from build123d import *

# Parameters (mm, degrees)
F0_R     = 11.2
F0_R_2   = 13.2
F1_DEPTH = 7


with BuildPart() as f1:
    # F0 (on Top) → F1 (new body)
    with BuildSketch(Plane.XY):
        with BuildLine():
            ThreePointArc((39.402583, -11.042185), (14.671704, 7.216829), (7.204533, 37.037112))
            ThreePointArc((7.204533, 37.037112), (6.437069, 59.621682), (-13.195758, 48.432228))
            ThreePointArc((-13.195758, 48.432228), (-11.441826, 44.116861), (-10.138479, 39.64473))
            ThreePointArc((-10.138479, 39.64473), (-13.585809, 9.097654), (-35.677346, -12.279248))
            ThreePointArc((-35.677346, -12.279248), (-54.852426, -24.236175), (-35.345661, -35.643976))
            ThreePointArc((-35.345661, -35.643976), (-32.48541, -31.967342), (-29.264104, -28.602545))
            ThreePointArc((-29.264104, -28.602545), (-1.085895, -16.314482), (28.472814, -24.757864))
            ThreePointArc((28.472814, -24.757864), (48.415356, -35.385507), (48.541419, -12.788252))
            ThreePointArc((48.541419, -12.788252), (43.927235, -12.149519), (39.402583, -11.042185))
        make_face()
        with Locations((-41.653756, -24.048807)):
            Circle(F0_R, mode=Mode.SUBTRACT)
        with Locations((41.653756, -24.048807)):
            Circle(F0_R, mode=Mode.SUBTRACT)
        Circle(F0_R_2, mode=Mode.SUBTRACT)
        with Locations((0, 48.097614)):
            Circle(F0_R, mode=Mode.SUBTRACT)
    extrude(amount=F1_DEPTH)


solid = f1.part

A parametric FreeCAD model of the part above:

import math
import FreeCAD as App
import Part
import Sketcher

V = App.Vector
Q = App.Units.Quantity

doc = App.newDocument("Part")
body = doc.addObject("PartDesign::Body", "Body")

sketch1 = body.newObject("Sketcher::SketchObject", "Sketch")
sketch1.AttachmentSupport = (doc.getObject("XY_Plane"), [""])
sketch1.MapMode = "FlatFace"
sketch1.addGeometry(Part.ArcOfCircle(Part.Circle(V(52.462752, 32.524978, 0), V(0, 0, 1), 45.482587), math.radians(174.306565), math.radians(253.312797)), False)
sketch1.addGeometry(Part.ArcOfCircle(Part.Circle(V(0, 48.097614, 0), V(0, 0, 1), 13.2), math.radians(-56.920791), math.radians(178.547422)), False)
sketch1.addGeometry(Part.ArcOfCircle(Part.Circle(V(-54.398844, 29.171584, 0), V(0, 0, 1), 45.482598), math.radians(13.312797), math.radians(25.054036)), False)
sketch1.addGeometry(Part.ArcOfCircle(Part.Circle(V(-54.398834, 29.171586, 0), V(0, 0, 1), 45.482588), math.radians(-65.693434), math.radians(13.312798)), False)
sketch1.addGeometry(Part.ArcOfCircle(Part.Circle(V(-41.653756, -24.048807, 0), V(0, 0, 1), 13.2), math.radians(63.079207), math.radians(298.547423)), False)
sketch1.addGeometry(Part.ArcOfCircle(Part.Circle(V(1.936001, -61.696494, 0), V(0, 0, 1), 45.482481), math.radians(133.312785), math.radians(145.054054)), False)
sketch1.addGeometry(Part.ArcOfCircle(Part.Circle(V(1.936082, -61.696564, 0), V(0, 0, 1), 45.482586), math.radians(54.306564), math.radians(133.312799)), False)
sketch1.addGeometry(Part.ArcOfCircle(Part.Circle(V(41.653756, -24.048807, 0), V(0, 0, 1), 13.2), math.radians(-176.920793), math.radians(58.547425)), False)
sketch1.addGeometry(Part.ArcOfCircle(Part.Circle(V(52.462731, 32.524882, 0), V(0, 0, 1), 45.482489), math.radians(-106.687212), math.radians(-94.945946)), False)
sketch1.addGeometry(Part.Circle(V(-41.653756, -24.048807, 0), V(0, 0, 1), 11.2), False)
sketch1.addGeometry(Part.Circle(V(0, 0, 0), V(0, 0, 1), 13.2), False)
sketch1.addGeometry(Part.Circle(V(41.653756, -24.048807, 0), V(0, 0, 1), 11.2), False)
sketch1.addGeometry(Part.Circle(V(0, 48.097614, 0), V(0, 0, 1), 11.2), False)
sketch1.addConstraint(Sketcher.Constraint("Coincident", 0, 1, 1, 1))
sketch1.addConstraint(Sketcher.Constraint("Coincident", 1, 2, 2, 2))
sketch1.addConstraint(Sketcher.Constraint("Coincident", 2, 1, 3, 2))
sketch1.addConstraint(Sketcher.Constraint("Coincident", 3, 1, 4, 1))
sketch1.addConstraint(Sketcher.Constraint("Coincident", 4, 2, 5, 2))
sketch1.addConstraint(Sketcher.Constraint("Coincident", 5, 1, 6, 2))
sketch1.addConstraint(Sketcher.Constraint("Coincident", 6, 1, 7, 1))
sketch1.addConstraint(Sketcher.Constraint("Coincident", 7, 2, 8, 2))
sketch1.addConstraint(Sketcher.Constraint("Coincident", 8, 1, 0, 2))
sketch1.addConstraint(Sketcher.Constraint("Coincident", 10, 3, -1, 1))
sketch1.addConstraint(Sketcher.Constraint("Coincident", 9, 3, 4, 3))
sketch1.addConstraint(Sketcher.Constraint("Coincident", 11, 3, 7, 3))
sketch1.addConstraint(Sketcher.Constraint("Coincident", 12, 3, 1, 3))
sketch1.addConstraint(Sketcher.Constraint("PointOnObject", 1, 3, -2))
sketch1.addConstraint(Sketcher.Constraint("Diameter", 9, Q("22.4 mm")))
sketch1.addConstraint(Sketcher.Constraint("Diameter", 10, Q("26.4 mm")))
sketch1.addConstraint(Sketcher.Constraint("Diameter", 11, Q("22.4 mm")))
sketch1.addConstraint(Sketcher.Constraint("Diameter", 12, Q("22.4 mm")))
sketch1.addConstraint(Sketcher.Constraint("Radius", 1, Q("13.2 mm")))
sketch1.addConstraint(Sketcher.Constraint("Radius", 4, Q("13.2 mm")))
sketch1.addConstraint(Sketcher.Constraint("Radius", 7, Q("13.2 mm")))
sketch1.addConstraint(Sketcher.Constraint("Radius", 5, Q("45.482481 mm")))
sketch1.addConstraint(Sketcher.Constraint("Radius", 8, Q("45.482489 mm")))
sketch1.addConstraint(Sketcher.Constraint("DistanceX", -1, 1, 5, 3, Q("1.936001 mm")))
sketch1.addConstraint(Sketcher.Constraint("Radius", 0, Q("45.482587 mm")))
sketch1.addConstraint(Sketcher.Constraint("Radius", 2, Q("45.482598 mm")))
sketch1.addConstraint(Sketcher.Constraint("Radius", 3, Q("45.482588 mm")))
sketch1.addConstraint(Sketcher.Constraint("Radius", 6, Q("45.482586 mm")))
sketch1.addConstraint(Sketcher.Constraint("DistanceY", 0, 1, 12, 3, Q("11.060502 mm")))
sketch1.addConstraint(Sketcher.Constraint("DistanceX", 0, 1, 8, 3, Q("45.258198 mm")))
sketch1.addConstraint(Sketcher.Constraint("DistanceY", 2, 1, 1, 2, Q("8.787498 mm")))
sketch1.addConstraint(Sketcher.Constraint("DistanceX", 2, 3, 3, 1, Q("18.721498 mm")))
sketch1.addConstraint(Sketcher.Constraint("DistanceY", 6, 3, 6, 1, Q("36.9387 mm")))
sketch1.addConstraint(Sketcher.Constraint("DistanceY", -1, 1, 0, 3, Q("32.524978 mm")))
sketch1.addConstraint(Sketcher.Constraint("DistanceX", -1, 1, 6, 3, Q("1.936082 mm")))
sketch1.addConstraint(Sketcher.Constraint("DistanceX", 1, 2, -1, 1, Q("13.195758 mm")))
sketch1.addConstraint(Sketcher.Constraint("DistanceY", -1, 1, 1, 2, Q("48.432228 mm")))
sketch1.addConstraint(Sketcher.Constraint("DistanceX", 2, 1, -1, 1, Q("10.138479 mm")))
sketch1.addConstraint(Sketcher.Constraint("DistanceX", 4, 2, -1, 1, Q("35.345661 mm")))
sketch1.addConstraint(Sketcher.Constraint("DistanceX", -1, 1, 7, 2, Q("48.541419 mm")))
sketch1.addConstraint(Sketcher.Constraint("DistanceX", 3, 3, 4, 3, Q("12.745078 mm")))
sketch1.addConstraint(Sketcher.Constraint("DistanceX", 2, 3, 4, 3, Q("12.745088 mm")))
sketch1.addConstraint(Sketcher.Constraint("DistanceY", 4, 2, 5, 1, Q("7.041431 mm")))
sketch1.addConstraint(Sketcher.Constraint("DistanceY", 11, 3, 8, 1, Q("13.006622 mm")))
pad1 = body.newObject("PartDesign::Pad", "Pad")
pad1.Profile = sketch1
pad1.Length = 7

doc.recompute()
